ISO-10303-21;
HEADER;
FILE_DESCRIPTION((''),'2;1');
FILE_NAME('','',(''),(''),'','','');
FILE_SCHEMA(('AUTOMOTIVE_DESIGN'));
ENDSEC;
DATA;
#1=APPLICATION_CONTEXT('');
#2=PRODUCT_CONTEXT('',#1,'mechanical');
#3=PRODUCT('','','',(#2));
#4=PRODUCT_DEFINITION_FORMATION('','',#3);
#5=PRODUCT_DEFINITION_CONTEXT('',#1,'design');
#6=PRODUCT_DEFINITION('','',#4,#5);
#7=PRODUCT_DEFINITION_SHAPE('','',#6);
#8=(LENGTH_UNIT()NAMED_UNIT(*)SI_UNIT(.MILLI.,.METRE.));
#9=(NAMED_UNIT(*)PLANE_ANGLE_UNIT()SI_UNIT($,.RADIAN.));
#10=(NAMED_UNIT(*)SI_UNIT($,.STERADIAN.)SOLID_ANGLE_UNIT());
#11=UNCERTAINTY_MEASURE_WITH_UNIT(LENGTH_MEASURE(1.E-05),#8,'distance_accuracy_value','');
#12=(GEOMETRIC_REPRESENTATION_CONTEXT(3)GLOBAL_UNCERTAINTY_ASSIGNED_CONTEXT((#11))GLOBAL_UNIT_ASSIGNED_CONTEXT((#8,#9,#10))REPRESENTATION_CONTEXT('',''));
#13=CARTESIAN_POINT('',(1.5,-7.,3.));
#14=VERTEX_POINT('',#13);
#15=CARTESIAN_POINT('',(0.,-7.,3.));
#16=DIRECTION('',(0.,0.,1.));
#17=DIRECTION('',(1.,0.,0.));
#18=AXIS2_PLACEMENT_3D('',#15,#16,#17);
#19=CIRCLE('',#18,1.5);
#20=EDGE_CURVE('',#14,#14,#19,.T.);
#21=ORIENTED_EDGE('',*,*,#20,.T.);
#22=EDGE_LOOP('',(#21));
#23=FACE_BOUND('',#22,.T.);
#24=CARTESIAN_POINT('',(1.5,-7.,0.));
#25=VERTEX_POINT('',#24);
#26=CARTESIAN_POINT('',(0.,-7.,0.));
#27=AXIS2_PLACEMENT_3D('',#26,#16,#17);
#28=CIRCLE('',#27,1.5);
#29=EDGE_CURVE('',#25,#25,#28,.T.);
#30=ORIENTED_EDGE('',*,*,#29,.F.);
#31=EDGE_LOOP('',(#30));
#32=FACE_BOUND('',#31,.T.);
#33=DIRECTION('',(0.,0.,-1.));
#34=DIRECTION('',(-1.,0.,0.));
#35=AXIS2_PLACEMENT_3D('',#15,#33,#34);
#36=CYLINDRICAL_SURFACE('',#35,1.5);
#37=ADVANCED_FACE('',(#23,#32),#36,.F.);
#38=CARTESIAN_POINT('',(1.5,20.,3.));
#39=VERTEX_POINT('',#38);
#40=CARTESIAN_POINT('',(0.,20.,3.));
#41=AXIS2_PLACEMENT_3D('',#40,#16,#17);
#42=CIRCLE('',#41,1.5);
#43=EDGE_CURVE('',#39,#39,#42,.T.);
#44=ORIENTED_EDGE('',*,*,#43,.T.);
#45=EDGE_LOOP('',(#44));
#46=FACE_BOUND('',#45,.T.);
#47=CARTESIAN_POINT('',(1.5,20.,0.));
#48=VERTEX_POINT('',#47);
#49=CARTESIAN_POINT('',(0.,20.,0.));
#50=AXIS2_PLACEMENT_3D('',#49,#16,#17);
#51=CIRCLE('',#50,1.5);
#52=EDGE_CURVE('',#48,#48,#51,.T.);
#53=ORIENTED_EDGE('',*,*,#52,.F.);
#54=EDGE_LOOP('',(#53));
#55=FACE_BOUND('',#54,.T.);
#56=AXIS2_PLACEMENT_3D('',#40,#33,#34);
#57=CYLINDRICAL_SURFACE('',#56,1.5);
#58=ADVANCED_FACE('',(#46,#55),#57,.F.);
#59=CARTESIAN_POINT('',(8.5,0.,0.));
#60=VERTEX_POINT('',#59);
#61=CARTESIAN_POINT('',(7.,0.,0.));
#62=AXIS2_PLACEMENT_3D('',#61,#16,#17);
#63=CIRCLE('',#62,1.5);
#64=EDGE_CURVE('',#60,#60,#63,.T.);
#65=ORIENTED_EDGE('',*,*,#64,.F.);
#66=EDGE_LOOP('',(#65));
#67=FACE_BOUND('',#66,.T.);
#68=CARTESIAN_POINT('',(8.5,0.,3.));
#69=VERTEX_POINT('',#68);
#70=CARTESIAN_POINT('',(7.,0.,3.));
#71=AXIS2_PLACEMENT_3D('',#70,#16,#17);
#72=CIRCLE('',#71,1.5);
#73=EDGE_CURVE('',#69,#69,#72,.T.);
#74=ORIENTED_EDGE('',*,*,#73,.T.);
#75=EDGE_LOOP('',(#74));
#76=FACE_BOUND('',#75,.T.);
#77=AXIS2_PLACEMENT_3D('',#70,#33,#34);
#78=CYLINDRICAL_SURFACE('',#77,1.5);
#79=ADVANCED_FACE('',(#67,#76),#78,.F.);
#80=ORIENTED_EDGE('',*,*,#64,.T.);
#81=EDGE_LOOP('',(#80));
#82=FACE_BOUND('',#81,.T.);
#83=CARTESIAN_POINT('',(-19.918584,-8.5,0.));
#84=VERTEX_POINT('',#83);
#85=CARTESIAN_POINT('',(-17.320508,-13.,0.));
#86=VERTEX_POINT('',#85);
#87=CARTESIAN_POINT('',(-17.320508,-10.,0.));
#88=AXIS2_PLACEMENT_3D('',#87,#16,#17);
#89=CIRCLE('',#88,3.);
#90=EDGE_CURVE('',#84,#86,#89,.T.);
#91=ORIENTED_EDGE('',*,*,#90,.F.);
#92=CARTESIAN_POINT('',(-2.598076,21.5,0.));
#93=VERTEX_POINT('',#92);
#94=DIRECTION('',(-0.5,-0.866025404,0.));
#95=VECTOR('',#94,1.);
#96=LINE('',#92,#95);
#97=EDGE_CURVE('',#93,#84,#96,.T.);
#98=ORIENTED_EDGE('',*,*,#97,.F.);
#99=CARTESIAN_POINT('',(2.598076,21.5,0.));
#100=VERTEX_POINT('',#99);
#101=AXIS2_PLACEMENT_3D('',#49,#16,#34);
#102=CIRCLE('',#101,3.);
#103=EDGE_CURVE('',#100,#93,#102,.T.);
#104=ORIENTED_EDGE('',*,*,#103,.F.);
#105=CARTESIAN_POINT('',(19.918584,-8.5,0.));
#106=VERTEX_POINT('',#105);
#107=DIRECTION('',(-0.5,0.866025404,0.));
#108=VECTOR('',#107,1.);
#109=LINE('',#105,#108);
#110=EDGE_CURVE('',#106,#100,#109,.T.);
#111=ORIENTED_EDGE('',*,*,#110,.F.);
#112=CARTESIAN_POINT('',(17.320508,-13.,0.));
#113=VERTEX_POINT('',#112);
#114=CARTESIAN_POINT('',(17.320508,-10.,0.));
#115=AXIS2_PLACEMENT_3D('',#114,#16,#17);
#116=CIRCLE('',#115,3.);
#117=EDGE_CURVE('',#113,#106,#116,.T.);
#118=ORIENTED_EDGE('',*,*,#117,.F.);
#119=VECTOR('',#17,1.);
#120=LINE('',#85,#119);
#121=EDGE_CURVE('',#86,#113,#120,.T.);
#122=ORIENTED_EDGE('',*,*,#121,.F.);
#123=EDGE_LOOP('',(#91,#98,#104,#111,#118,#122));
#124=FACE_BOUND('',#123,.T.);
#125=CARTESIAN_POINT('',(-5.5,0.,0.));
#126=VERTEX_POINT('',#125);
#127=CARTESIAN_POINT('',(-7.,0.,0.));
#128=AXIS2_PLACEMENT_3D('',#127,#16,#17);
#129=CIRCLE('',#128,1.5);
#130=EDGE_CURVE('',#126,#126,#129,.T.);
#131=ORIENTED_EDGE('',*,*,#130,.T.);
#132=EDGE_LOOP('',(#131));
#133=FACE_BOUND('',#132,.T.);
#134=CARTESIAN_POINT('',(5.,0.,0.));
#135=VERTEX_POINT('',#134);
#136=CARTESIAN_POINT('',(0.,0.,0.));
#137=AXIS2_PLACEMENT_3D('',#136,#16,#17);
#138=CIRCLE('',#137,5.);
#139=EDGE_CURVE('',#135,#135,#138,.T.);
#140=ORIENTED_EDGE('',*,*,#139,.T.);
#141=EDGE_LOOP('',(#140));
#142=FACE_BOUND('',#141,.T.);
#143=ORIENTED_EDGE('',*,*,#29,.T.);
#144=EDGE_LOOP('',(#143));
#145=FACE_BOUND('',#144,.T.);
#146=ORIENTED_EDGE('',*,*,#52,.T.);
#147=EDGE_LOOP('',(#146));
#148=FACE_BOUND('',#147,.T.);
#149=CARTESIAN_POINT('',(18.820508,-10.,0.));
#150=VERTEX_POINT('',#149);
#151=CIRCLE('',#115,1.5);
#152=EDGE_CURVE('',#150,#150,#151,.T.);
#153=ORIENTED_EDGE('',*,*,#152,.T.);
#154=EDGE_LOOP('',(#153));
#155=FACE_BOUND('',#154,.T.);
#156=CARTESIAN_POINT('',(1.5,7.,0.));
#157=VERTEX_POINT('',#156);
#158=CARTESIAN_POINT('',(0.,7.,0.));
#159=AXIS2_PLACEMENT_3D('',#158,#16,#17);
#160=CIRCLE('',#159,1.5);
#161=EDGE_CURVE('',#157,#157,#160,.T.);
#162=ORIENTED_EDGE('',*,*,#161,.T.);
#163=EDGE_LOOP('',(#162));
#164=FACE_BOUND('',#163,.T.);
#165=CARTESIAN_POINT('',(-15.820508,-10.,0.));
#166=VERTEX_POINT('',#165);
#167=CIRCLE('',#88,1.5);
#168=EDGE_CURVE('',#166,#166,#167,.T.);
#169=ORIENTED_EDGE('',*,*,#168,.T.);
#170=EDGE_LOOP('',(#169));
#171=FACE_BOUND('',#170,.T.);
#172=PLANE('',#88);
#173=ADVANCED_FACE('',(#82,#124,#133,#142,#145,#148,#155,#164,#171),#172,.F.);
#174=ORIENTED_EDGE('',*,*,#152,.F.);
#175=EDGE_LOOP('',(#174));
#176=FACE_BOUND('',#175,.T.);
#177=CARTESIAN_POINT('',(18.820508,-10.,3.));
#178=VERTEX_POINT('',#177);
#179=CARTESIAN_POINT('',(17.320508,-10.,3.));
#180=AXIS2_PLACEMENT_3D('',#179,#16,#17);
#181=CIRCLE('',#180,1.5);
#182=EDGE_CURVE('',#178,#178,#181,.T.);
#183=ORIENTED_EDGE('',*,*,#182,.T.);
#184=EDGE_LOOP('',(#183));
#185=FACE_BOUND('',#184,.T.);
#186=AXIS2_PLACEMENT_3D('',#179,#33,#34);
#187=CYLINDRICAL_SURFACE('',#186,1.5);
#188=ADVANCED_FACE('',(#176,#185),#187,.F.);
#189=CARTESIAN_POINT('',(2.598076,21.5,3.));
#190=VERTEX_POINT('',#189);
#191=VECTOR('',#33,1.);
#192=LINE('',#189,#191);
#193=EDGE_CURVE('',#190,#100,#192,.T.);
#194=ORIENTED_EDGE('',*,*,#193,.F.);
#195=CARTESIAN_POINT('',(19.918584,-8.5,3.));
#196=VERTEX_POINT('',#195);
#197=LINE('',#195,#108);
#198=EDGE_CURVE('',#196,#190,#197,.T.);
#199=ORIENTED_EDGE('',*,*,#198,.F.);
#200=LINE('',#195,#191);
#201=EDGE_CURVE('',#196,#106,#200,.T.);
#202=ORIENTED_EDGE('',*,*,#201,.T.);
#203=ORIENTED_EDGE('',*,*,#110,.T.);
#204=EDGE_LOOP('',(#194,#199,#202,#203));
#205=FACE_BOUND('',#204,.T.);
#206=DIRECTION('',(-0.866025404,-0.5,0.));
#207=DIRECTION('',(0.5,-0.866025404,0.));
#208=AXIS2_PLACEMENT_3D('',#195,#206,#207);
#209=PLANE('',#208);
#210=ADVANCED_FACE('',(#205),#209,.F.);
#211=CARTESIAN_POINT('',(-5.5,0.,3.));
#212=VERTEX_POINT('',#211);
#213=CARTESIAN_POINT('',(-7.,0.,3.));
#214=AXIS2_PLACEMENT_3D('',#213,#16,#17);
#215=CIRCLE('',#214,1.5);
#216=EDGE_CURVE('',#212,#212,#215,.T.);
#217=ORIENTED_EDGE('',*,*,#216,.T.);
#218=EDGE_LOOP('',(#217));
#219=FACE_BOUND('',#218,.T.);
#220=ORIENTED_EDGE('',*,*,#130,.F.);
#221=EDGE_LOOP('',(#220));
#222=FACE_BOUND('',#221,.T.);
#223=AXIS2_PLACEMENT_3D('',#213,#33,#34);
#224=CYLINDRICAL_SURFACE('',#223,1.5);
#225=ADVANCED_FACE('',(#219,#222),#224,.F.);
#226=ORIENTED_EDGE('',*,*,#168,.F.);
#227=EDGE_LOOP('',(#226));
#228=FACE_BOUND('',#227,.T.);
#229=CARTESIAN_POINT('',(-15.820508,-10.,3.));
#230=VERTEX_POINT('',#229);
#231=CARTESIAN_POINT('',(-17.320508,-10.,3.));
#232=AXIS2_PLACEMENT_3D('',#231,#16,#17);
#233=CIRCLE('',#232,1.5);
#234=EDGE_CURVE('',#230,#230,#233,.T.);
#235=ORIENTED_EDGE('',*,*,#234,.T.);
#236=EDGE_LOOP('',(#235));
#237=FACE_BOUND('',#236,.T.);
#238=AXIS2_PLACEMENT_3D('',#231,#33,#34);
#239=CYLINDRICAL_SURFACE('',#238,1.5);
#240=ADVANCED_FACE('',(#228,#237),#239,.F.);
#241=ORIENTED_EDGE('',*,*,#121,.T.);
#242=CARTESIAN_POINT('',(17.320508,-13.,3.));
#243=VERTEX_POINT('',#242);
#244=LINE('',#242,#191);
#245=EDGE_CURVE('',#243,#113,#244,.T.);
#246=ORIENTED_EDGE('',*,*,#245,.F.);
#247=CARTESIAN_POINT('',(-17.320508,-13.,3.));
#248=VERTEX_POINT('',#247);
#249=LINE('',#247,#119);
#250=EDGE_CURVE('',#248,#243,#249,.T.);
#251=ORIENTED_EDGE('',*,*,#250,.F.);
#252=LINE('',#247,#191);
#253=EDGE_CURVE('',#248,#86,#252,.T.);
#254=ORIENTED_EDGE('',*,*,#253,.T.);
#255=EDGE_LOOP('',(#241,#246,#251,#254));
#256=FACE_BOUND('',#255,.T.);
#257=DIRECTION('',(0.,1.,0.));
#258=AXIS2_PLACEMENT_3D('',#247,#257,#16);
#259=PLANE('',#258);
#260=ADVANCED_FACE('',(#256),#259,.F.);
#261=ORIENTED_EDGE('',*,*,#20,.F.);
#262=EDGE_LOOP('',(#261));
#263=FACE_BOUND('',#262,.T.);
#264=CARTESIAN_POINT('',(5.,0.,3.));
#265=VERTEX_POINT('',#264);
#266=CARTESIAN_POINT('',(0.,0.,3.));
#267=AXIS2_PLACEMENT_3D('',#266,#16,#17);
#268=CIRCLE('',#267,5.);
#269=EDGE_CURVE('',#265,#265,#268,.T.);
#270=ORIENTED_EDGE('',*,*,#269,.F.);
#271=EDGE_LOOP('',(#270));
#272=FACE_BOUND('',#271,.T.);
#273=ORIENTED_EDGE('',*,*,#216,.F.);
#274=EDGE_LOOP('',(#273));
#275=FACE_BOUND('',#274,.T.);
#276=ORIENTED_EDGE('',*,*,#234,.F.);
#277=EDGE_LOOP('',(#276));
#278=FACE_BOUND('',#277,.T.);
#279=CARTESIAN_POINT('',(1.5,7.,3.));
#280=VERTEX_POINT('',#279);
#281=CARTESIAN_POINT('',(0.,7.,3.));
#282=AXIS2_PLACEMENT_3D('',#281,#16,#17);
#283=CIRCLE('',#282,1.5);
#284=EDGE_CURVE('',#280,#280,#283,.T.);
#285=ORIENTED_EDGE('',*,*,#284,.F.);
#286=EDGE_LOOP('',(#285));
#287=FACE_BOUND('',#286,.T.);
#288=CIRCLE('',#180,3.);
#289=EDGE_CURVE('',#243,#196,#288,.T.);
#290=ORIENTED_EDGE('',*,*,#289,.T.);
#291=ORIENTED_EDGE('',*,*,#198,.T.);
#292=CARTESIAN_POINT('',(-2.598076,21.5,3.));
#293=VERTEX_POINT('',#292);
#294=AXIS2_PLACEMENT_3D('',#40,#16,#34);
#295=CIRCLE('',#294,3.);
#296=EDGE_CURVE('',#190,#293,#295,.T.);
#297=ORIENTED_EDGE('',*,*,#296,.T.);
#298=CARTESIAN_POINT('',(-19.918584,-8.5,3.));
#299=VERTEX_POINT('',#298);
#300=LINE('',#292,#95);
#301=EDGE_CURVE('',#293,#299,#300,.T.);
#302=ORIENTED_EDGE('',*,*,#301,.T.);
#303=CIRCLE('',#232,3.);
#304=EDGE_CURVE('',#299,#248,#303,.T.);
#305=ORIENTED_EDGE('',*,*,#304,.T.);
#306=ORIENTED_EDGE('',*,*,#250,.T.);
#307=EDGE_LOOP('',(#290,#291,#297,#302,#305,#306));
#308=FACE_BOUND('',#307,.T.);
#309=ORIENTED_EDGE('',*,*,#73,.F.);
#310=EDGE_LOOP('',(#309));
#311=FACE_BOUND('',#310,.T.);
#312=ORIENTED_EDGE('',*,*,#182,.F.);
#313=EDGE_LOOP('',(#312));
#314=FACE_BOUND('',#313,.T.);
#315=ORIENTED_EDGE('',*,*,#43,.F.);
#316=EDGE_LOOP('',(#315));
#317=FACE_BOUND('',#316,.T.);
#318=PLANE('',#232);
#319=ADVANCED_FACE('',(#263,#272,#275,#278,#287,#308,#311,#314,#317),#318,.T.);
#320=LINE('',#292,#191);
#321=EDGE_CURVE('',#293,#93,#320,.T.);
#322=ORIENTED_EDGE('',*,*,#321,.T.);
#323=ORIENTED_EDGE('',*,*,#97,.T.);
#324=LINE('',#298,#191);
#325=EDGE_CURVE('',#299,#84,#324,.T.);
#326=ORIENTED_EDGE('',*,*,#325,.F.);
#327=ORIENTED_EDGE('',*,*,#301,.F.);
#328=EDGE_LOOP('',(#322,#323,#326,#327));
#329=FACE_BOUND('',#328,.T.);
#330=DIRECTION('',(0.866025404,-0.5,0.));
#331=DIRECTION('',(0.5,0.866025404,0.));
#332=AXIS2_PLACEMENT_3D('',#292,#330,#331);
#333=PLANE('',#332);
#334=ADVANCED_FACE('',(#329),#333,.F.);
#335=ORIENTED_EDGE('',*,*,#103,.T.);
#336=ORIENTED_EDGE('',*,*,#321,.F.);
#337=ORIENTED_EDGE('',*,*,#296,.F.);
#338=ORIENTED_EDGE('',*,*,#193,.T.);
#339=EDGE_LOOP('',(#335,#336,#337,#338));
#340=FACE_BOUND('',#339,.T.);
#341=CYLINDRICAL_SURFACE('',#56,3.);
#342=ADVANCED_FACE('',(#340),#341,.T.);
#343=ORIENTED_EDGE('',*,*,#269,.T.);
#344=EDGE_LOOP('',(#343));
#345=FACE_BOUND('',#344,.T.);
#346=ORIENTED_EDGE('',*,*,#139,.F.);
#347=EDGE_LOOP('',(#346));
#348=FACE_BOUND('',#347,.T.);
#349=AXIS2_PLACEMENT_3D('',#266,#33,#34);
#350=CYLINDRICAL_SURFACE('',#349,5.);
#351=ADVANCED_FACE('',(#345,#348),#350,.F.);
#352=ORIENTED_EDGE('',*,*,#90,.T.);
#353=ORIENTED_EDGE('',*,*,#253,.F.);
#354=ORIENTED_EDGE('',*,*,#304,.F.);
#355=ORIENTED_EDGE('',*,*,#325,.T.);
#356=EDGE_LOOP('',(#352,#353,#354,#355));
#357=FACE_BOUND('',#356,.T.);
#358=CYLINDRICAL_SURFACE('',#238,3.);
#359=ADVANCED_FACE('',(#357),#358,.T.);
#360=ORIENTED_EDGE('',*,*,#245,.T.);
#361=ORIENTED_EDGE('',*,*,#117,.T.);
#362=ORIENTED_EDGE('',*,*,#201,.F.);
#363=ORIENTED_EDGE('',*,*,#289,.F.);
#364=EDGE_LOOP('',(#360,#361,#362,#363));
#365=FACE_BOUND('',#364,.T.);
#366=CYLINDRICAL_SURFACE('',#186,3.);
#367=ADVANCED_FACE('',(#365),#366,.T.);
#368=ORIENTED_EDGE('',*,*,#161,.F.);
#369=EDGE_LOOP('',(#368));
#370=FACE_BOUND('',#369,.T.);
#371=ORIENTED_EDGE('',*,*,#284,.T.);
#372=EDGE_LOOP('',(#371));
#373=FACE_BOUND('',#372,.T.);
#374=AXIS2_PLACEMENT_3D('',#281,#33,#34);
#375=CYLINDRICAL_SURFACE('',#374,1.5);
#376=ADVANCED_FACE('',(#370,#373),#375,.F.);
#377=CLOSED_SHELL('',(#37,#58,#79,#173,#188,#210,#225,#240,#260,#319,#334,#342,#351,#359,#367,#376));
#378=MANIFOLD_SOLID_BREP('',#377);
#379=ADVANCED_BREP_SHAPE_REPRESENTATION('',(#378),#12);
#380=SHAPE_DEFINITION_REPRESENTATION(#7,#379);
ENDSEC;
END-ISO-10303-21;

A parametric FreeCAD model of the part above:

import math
import FreeCAD as App
import Part
import Sketcher
Q = App.Units.Quantity

doc = App.newDocument("Part")
params = doc.addObject("Spreadsheet::Sheet", "Params")
for row, (alias, value) in enumerate([
    ("sketch1_diameter", "3 mm"),
    ("sketch1_diameter2", "10 mm"),
    ("sketch1_radius", "3 mm"),
    ("pad1_length", "3 mm"),
], start=1):
    params.set(f"A{row}", alias)
    params.set(f"B{row}", "=" + value)
    params.setAlias(f"B{row}", alias)

body = doc.addObject("PartDesign::Body", "Body")

# Sketch on XY plane
sketch1 = doc.addObject("Sketcher::SketchObject", "Sketch")
body.addObject(sketch1)
sketch1.AttachmentSupport = (doc.XY_Plane, [""])
sketch1.MapMode = "FlatFace"
sketch1.addGeometry([
    Part.LineSegment(App.Vector(-2.6, 21.5, 0), App.Vector(-19.9, -8.5, 0)),  # 0
    Part.ArcOfCircle(Part.Circle(App.Vector(-17.3, -10, 0), App.Vector(0, 0, 1), 3), math.radians(150), math.radians(270)),  # 1
    Part.LineSegment(App.Vector(-17.3, -13, 0), App.Vector(17.3, -13, 0)),  # 2
    Part.ArcOfCircle(Part.Circle(App.Vector(17.3, -10, 0), App.Vector(0, 0, 1), 3), math.radians(-90), math.radians(30)),  # 3
    Part.LineSegment(App.Vector(19.9, -8.5, 0), App.Vector(2.6, 21.5, 0)),  # 4
    Part.ArcOfCircle(Part.Circle(App.Vector(0, 20, 0), App.Vector(0, 0, 1), 3), math.radians(30), math.radians(150)),  # 5
    Part.Circle(App.Vector(-17.3, -10, 0), App.Vector(0, 0, 1), 1.5),  # 6
    Part.Circle(App.Vector(-7, 0, 0), App.Vector(0, 0, 1), 1.5),  # 7
    Part.Circle(App.Vector(0, -7, 0), App.Vector(0, 0, 1), 1.5),  # 8
    Part.Circle(App.Vector(17.3, -10, 0), App.Vector(0, 0, 1), 1.5),  # 9
    Part.Circle(App.Vector(0, 0, 0), App.Vector(0, 0, 1), 5),  # 10
    Part.Circle(App.Vector(7, 0, 0), App.Vector(0, 0, 1), 1.5),  # 11
    Part.Circle(App.Vector(0, 7, 0), App.Vector(0, 0, 1), 1.5),  # 12
    Part.Circle(App.Vector(0, 20, 0), App.Vector(0, 0, 1), 1.5),  # 13
], False)
sketch1.addConstraint([
    Sketcher.Constraint("Tangent", 0, 2, 1, 1),
    Sketcher.Constraint("Tangent", 1, 2, 2, 1),
    Sketcher.Constraint("Tangent", 2, 2, 3, 1),
    Sketcher.Constraint("Tangent", 3, 2, 4, 1),
    Sketcher.Constraint("Tangent", 4, 2, 5, 1),
    Sketcher.Constraint("Tangent", 5, 2, 0, 1),
    Sketcher.Constraint("Horizontal", 2),
    Sketcher.Constraint("Coincident", 10, 3, -1, 1),
    Sketcher.Constraint("Coincident", 6, 3, 1, 3),
    Sketcher.Constraint("Coincident", 9, 3, 3, 3),
    Sketcher.Constraint("Coincident", 13, 3, 5, 3),
    Sketcher.Constraint("Equal", 1, 3),
    Sketcher.Constraint("Equal", 3, 5),
    Sketcher.Constraint("Equal", 6, 7),
    Sketcher.Constraint("Equal", 7, 8),
    Sketcher.Constraint("Equal", 8, 9),
    Sketcher.Constraint("Equal", 9, 11),
    Sketcher.Constraint("Equal", 11, 12),
    Sketcher.Constraint("Equal", 12, 13),
    Sketcher.Constraint("Symmetric", 7, 3, 11, 3, -1, 1),
    Sketcher.Constraint("Symmetric", 8, 3, 12, 3, -1, 1),
    Sketcher.Constraint("Symmetric", 0, 2, 3, 2, -2),
    Sketcher.Constraint("PointOnObject", 7, 3, -1),
    Sketcher.Constraint("PointOnObject", 8, 3, -2),
    Sketcher.Constraint("Diameter", 6, 3.0),
    Sketcher.Constraint("Diameter", 10, 10.0),
    Sketcher.Constraint("Radius", 1, 3.0),
    Sketcher.Constraint("Angle", 0, Q("-120 deg")),
    Sketcher.Constraint("DistanceY", 1, 3, -1, 1, 10.0),
    Sketcher.Constraint("DistanceY", -1, 1, 5, 3, 20.0),
    Sketcher.Constraint("DistanceX", 7, 3, -1, 1, 7.0),
    Sketcher.Constraint("DistanceY", 8, 3, -1, 1, 7.0),
])
sketch1.setExpression("Constraints[24]", "Params.sketch1_diameter")
sketch1.setExpression("Constraints[25]", "Params.sketch1_diameter2")
sketch1.setExpression("Constraints[26]", "Params.sketch1_radius")
pad1 = doc.addObject("PartDesign::Pad", "Pad")
body.addObject(pad1)
pad1.Profile = sketch1
pad1.setExpression("Length", "Params.pad1_length")

doc.recompute()
